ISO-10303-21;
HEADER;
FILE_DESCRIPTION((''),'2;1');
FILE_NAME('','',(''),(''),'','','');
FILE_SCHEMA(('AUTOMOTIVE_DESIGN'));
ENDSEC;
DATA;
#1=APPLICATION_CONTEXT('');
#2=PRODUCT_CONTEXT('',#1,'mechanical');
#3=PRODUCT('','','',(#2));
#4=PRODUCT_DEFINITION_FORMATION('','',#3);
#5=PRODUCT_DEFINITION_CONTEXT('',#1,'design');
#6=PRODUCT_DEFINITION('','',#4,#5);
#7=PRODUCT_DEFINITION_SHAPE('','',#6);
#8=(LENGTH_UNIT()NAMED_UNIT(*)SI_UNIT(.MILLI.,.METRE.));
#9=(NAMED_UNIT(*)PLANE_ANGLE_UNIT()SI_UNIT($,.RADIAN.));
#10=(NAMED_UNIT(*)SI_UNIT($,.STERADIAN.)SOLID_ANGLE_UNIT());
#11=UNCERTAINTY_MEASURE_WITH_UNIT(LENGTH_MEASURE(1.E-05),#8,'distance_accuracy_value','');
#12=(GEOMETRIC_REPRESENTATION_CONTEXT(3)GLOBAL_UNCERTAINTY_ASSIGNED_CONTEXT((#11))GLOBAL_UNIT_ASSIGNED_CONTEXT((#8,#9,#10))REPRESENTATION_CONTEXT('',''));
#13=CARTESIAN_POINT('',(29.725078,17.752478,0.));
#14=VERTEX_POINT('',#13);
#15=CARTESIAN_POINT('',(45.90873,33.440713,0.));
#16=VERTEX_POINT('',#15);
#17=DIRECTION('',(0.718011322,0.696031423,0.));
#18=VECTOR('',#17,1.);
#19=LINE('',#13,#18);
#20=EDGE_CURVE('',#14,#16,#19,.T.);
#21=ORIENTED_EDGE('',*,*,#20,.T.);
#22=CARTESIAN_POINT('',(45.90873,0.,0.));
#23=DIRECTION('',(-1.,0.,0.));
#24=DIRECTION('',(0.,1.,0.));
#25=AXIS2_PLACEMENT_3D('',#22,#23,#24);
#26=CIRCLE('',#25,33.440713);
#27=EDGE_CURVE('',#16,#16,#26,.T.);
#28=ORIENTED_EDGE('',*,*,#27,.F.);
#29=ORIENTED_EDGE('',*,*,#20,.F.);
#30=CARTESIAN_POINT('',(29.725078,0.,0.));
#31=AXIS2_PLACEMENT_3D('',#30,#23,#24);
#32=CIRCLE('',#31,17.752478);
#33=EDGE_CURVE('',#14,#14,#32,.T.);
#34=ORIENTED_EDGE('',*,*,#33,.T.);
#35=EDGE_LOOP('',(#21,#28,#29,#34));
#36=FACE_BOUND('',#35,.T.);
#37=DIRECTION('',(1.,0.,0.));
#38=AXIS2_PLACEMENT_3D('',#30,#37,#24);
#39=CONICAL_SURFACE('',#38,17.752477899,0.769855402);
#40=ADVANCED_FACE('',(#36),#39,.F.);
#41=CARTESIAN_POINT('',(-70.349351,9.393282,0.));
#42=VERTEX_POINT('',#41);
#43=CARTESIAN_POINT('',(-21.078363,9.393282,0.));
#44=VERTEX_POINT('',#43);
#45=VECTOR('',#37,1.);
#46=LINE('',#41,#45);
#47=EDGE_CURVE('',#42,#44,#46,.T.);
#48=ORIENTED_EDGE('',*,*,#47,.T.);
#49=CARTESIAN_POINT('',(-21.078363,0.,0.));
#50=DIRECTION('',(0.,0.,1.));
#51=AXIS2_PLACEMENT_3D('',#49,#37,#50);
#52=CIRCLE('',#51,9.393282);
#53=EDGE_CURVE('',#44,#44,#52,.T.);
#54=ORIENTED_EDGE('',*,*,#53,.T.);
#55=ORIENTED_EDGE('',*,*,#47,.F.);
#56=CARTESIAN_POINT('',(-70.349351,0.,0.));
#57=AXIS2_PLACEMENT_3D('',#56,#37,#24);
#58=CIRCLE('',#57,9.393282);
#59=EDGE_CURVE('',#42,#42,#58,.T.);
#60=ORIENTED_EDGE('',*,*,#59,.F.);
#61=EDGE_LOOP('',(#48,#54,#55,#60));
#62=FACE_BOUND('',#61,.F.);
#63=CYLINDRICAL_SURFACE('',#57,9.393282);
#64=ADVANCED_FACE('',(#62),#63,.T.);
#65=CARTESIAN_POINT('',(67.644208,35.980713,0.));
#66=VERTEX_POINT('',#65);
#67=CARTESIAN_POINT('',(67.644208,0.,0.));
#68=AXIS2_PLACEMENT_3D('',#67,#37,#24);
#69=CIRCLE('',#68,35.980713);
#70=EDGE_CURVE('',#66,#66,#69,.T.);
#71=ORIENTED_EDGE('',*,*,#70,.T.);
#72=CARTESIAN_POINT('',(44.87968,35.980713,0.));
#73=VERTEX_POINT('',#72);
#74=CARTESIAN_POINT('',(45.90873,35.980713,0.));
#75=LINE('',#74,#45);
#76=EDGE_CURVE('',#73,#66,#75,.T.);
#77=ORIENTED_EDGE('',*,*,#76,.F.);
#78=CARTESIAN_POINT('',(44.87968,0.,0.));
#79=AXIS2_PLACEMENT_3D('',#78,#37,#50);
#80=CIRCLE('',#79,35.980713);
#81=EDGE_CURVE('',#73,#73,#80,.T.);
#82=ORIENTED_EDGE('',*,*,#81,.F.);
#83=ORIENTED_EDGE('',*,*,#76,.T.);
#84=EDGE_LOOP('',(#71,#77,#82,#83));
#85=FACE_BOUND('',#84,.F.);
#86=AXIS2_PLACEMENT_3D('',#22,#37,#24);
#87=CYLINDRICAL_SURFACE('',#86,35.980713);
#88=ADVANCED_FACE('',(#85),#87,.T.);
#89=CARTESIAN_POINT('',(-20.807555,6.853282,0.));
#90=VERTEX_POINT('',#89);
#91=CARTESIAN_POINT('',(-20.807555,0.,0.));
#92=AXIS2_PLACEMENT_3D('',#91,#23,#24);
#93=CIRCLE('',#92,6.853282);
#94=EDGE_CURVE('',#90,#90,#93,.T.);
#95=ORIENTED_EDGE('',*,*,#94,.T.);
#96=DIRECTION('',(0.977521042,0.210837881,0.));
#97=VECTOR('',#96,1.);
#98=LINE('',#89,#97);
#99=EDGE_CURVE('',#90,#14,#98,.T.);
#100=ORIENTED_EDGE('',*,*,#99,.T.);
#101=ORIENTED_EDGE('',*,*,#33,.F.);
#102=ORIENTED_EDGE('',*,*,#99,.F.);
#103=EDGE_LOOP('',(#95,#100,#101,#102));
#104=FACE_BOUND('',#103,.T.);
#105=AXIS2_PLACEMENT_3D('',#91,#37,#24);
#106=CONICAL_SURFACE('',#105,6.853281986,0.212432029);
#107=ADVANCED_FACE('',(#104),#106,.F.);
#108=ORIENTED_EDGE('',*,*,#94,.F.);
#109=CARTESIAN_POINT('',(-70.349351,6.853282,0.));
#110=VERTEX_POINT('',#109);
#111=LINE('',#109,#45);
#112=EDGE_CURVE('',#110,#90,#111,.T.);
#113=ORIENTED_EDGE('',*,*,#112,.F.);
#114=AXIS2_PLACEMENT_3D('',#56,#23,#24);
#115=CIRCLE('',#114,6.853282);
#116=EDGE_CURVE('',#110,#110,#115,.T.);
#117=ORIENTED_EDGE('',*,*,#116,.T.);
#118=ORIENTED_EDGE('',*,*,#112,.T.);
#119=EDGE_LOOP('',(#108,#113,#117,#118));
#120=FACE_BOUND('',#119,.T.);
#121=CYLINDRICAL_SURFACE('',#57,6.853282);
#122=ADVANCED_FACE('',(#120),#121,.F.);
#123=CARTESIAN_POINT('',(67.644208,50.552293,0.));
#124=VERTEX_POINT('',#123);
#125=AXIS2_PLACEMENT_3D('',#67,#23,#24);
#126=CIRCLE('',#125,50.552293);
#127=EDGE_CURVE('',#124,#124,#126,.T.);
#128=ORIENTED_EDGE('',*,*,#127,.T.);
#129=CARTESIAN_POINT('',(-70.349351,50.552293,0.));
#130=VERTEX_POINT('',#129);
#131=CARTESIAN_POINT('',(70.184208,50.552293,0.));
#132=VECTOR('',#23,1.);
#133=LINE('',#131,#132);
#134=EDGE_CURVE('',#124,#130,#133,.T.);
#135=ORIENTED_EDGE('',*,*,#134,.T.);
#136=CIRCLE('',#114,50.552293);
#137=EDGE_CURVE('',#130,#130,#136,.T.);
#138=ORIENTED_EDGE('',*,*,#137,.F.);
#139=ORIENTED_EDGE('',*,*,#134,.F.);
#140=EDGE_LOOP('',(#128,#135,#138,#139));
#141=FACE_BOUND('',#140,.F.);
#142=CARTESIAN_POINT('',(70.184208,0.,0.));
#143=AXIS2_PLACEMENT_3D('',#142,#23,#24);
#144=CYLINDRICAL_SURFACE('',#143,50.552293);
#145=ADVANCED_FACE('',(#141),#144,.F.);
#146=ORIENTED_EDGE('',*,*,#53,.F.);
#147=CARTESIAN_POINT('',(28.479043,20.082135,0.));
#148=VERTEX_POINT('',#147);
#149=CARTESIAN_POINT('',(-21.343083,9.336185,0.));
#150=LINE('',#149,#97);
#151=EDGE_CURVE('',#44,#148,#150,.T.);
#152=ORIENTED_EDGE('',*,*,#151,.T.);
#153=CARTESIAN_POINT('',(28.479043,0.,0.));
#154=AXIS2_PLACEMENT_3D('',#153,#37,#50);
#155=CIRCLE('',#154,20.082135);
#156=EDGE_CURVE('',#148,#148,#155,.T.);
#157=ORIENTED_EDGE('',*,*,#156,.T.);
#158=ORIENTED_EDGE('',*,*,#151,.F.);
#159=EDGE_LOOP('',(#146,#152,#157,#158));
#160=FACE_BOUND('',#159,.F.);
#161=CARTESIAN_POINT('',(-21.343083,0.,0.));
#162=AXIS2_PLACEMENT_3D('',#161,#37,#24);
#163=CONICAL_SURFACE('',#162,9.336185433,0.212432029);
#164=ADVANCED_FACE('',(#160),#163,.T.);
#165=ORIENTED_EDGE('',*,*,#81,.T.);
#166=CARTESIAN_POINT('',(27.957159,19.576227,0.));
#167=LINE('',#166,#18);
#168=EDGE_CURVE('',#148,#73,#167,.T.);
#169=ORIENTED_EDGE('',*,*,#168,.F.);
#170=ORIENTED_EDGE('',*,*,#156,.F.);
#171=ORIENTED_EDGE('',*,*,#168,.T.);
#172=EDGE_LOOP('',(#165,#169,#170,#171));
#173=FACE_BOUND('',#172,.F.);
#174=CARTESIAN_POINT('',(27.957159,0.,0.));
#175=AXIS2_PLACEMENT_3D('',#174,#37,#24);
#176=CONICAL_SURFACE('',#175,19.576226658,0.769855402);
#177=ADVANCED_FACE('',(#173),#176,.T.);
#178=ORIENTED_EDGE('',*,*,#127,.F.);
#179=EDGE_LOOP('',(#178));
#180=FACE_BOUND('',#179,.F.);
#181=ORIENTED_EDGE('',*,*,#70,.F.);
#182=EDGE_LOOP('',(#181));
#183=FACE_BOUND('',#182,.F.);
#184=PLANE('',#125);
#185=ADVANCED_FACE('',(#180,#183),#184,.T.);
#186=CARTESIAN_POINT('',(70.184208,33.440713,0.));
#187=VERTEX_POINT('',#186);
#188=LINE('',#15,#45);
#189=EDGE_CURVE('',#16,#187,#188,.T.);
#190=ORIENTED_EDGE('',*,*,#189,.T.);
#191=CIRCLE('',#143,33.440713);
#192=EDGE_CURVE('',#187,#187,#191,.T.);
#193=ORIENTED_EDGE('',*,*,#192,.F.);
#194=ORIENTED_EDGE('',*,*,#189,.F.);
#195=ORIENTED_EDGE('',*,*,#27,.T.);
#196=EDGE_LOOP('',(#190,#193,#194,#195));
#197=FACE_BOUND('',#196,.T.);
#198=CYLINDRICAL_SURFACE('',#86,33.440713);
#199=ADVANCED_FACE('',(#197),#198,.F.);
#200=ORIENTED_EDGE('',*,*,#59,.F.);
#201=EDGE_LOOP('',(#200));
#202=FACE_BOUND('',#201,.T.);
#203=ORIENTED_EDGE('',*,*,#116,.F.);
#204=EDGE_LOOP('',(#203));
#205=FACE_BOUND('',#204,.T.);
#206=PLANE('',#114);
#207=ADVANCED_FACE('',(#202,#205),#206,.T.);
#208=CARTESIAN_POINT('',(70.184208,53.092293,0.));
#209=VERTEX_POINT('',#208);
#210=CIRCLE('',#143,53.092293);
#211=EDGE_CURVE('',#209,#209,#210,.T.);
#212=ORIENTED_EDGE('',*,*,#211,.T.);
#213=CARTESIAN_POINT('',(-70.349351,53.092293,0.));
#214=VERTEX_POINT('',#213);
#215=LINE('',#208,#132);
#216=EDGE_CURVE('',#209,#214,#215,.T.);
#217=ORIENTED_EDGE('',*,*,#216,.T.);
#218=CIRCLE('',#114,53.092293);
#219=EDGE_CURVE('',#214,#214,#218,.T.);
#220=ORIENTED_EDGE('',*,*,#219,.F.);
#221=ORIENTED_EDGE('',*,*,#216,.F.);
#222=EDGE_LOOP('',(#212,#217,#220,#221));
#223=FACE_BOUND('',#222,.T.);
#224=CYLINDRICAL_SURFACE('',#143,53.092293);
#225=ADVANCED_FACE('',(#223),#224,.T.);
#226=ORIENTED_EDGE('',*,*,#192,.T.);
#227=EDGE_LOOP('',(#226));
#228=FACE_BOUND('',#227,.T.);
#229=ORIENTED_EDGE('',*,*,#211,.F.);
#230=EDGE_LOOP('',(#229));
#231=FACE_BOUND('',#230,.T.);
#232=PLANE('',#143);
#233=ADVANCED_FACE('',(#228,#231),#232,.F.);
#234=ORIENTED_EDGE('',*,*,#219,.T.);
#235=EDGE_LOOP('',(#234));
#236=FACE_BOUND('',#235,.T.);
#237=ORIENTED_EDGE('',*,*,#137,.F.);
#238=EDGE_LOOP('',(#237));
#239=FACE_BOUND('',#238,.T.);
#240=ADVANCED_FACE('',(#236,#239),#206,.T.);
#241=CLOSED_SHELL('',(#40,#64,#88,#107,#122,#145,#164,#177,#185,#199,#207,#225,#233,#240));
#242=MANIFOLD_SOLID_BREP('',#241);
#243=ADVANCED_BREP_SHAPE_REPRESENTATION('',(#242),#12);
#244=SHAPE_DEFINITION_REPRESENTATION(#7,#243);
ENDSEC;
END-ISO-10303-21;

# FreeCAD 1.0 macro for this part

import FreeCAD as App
import Part
import Sketcher
from FreeCAD import Vector
Q = App.Units.Quantity


def faces_at(feature, points):
    """Names of the faces that lie closest to the given points."""
    faces = feature.Shape.Faces
    near = lambda p: min(range(len(faces)), key=lambda i: faces[i].distToShape(Part.Vertex(*p))[0])
    return sorted({f"Face{near(p) + 1}" for p in points})

doc = App.newDocument("Part")
body = doc.addObject("PartDesign::Body", "Body")

# Sketch on XY plane
sketch1 = body.newObject("Sketcher::SketchObject", "Sketch")
sketch1.AttachmentSupport = (doc.getObject("XY_Plane"), [""])
sketch1.MapMode = "FlatFace"
sketch1.addGeometry([
    Part.LineSegment(Vector(-70, 53, 0), Vector(-70, 7, 0)),  # 0
    Part.LineSegment(Vector(-70, 7, 0), Vector(-21, 7, 0)),  # 1
    Part.LineSegment(Vector(-21, 7, 0), Vector(30, 18, 0)),  # 2
    Part.LineSegment(Vector(30, 18, 0), Vector(46, 33, 0)),  # 3
    Part.LineSegment(Vector(46, 33, 0), Vector(70, 33, 0)),  # 4
    Part.LineSegment(Vector(70, 33, 0), Vector(70, 53, 0)),  # 5
    Part.LineSegment(Vector(70, 53, 0), Vector(-70, 53, 0)),  # 6
], False)
sketch1.addConstraint([
    Sketcher.Constraint("Coincident", 0, 2, 1, 1),
    Sketcher.Constraint("Coincident", 1, 2, 2, 1),
    Sketcher.Constraint("Coincident", 2, 2, 3, 1),
    Sketcher.Constraint("Coincident", 3, 2, 4, 1),
    Sketcher.Constraint("Coincident", 4, 2, 5, 1),
    Sketcher.Constraint("Coincident", 5, 2, 6, 1),
    Sketcher.Constraint("Coincident", 6, 2, 0, 1),
    Sketcher.Constraint("Vertical", 0),
    Sketcher.Constraint("Horizontal", 1),
    Sketcher.Constraint("Horizontal", 4),
    Sketcher.Constraint("Vertical", 5),
    Sketcher.Constraint("Horizontal", 6),
    Sketcher.Constraint("DistanceX", 6, 2, 6, 1, 140.533559),
    Sketcher.Constraint("DistanceY", 0, 2, 0, 1, 46.239011),
    Sketcher.Constraint("DistanceY", 5, 1, 5, 2, 19.651581),
    Sketcher.Constraint("Distance", 3, 22.53955),
    Sketcher.Constraint("DistanceX", 1, 1, 1, 2, 49.541796),
    Sketcher.Constraint("DistanceX", 4, 1, 4, 2, 24.275478),
    Sketcher.Constraint("DistanceX", 0, 2, -1, 1, 70.349351),
    Sketcher.Constraint("DistanceY", -1, 1, 0, 2, 6.853282),
    Sketcher.Constraint("DistanceX", -1, 1, 2, 2, 29.725078),
])
revolution = body.newObject("PartDesign::Revolution", "Revolution")
revolution.Profile = sketch1
revolution.ReferenceAxis = (sketch1, ["H_Axis"])
revolution.Angle = 360
doc.recompute()

thickness = body.newObject("PartDesign::Thickness", "Thickness")
thickness.Base = (revolution, faces_at(revolution, [(-70.349, -21.237, 21.237)]))
thickness.Value = Q("0.1 in")
thickness.Reversed = True
thickness.Join = "Intersection"

doc.recompute()
